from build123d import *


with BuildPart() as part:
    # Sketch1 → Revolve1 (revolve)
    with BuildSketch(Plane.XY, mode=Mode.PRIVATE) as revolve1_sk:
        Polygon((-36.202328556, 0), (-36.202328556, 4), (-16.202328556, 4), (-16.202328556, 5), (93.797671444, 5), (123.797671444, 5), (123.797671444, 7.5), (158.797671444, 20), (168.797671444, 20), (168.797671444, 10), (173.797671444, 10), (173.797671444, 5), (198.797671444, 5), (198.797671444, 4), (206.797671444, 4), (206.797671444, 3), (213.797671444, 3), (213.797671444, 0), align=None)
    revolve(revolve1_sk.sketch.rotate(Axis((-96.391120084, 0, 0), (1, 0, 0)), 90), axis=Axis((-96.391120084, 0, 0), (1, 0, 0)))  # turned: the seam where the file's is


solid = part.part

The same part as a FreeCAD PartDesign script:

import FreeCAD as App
import Part
import Sketcher
Q = App.Units.Quantity

doc = App.newDocument("Part")
body = doc.addObject("PartDesign::Body", "Body")

# Sketch on XY plane
sketch1 = body.newObject("Sketcher::SketchObject", "Sketch")
sketch1.AttachmentSupport = (doc.getObject("XY_Plane"), [""])
sketch1.MapMode = "FlatFace"
sketch1.addGeometry([
    Part.LineSegment(App.Vector(-36.202329, 4, 0), App.Vector(-36.202329, 0, 0)),  # 0
    Part.LineSegment(App.Vector(-36.202329, 0, 0), App.Vector(213.797671, 0, 0)),  # 1
    Part.LineSegment(App.Vector(213.797671, 0, 0), App.Vector(213.797671, 3, 0)),  # 2
    Part.LineSegment(App.Vector(213.797671, 3, 0), App.Vector(206.797671, 3, 0)),  # 3
    Part.LineSegment(App.Vector(206.797671, 3, 0), App.Vector(206.797671, 4, 0)),  # 4
    Part.LineSegment(App.Vector(206.797671, 4, 0), App.Vector(198.797671, 4, 0)),  # 5
    Part.LineSegment(App.Vector(198.797671, 4, 0), App.Vector(198.797671, 5, 0)),  # 6
    Part.LineSegment(App.Vector(198.797671, 5, 0), App.Vector(173.797671, 5, 0)),  # 7
    Part.LineSegment(App.Vector(173.797671, 5, 0), App.Vector(173.797671, 10, 0)),  # 8
    Part.LineSegment(App.Vector(173.797671, 10, 0), App.Vector(168.797671, 10, 0)),  # 9
    Part.LineSegment(App.Vector(168.797671, 10, 0), App.Vector(168.797671, 20, 0)),  # 10
    Part.LineSegment(App.Vector(168.797671, 20, 0), App.Vector(158.797671, 20, 0)),  # 11
    Part.LineSegment(App.Vector(158.797671, 20, 0), App.Vector(123.797671, 7.5, 0)),  # 12
    Part.LineSegment(App.Vector(123.797671, 7.5, 0), App.Vector(123.797671, 5, 0)),  # 13
    Part.LineSegment(App.Vector(123.797671, 5, 0), App.Vector(-16.202329, 5, 0)),  # 14
    Part.LineSegment(App.Vector(-16.202329, 5, 0), App.Vector(-16.202329, 4, 0)),  # 15
    Part.LineSegment(App.Vector(-16.202329, 4, 0), App.Vector(-36.202329, 4, 0)),  # 16
], False)
sketch1.addConstraint([
    Sketcher.Constraint("Coincident", 0, 2, 1, 1),
    Sketcher.Constraint("Coincident", 1, 2, 2, 1),
    Sketcher.Constraint("Coincident", 2, 2, 3, 1),
    Sketcher.Constraint("Coincident", 3, 2, 4, 1),
    Sketcher.Constraint("Coincident", 4, 2, 5, 1),
    Sketcher.Constraint("Coincident", 5, 2, 6, 1),
    Sketcher.Constraint("Coincident", 6, 2, 7, 1),
    Sketcher.Constraint("Coincident", 7, 2, 8, 1),
    Sketcher.Constraint("Coincident", 8, 2, 9, 1),
    Sketcher.Constraint("Coincident", 9, 2, 10, 1),
    Sketcher.Constraint("Coincident", 10, 2, 11, 1),
    Sketcher.Constraint("Coincident", 11, 2, 12, 1),
    Sketcher.Constraint("Coincident", 12, 2, 13, 1),
    Sketcher.Constraint("Coincident", 13, 2, 14, 1),
    Sketcher.Constraint("Coincident", 14, 2, 15, 1),
    Sketcher.Constraint("Coincident", 15, 2, 16, 1),
    Sketcher.Constraint("Coincident", 16, 2, 0, 1),
    Sketcher.Constraint("Vertical", 0),
    Sketcher.Constraint("Horizontal", 1),
    Sketcher.Constraint("Vertical", 2),
    Sketcher.Constraint("Horizontal", 3),
    Sketcher.Constraint("Vertical", 4),
    Sketcher.Constraint("Horizontal", 5),
    Sketcher.Constraint("Vertical", 6),
    Sketcher.Constraint("Horizontal", 7),
    Sketcher.Constraint("Vertical", 8),
    Sketcher.Constraint("Horizontal", 9),
    Sketcher.Constraint("Vertical", 10),
    Sketcher.Constraint("Horizontal", 11),
    Sketcher.Constraint("Vertical", 13),
    Sketcher.Constraint("Horizontal", 14),
    Sketcher.Constraint("Vertical", 15),
    Sketcher.Constraint("Horizontal", 16),
    Sketcher.Constraint("PointOnObject", 0, 2, -1),
    Sketcher.Constraint("Horizontal", 7, 2, 13, 2),
    Sketcher.Constraint("Horizontal", 5, 2, 15, 2),
    Sketcher.Constraint("Equal", 4, 6),
    Sketcher.Constraint("Equal", 9, 8),
    Sketcher.Constraint("Equal", 11, 10),
    Sketcher.Constraint("DistanceX", 1, 1, 1, 2, Q("250 mm")),
    Sketcher.Constraint("DistanceX", 3, 2, 3, 1, Q("7 mm")),
    Sketcher.Constraint("DistanceX", 5, 2, 5, 1, Q("8 mm")),
    Sketcher.Constraint("DistanceX", 7, 2, 7, 1, Q("25 mm")),
    Sketcher.Constraint("DistanceX", 9, 2, 9, 1, Q("5 mm")),
    Sketcher.Constraint("DistanceX", 11, 2, 11, 1, Q("10 mm")),
    Sketcher.Constraint("DistanceX", 14, 2, 14, 1, Q("140 mm")),
    Sketcher.Constraint("DistanceX", 16, 2, 16, 1, Q("20 mm")),
    Sketcher.Constraint("DistanceY", 0, 2, 0, 1, Q("4 mm")),
    Sketcher.Constraint("DistanceY", 2, 1, 2, 2, Q("3 mm")),
    Sketcher.Constraint("DistanceY", 13, 2, 13, 1, Q("2.5 mm")),
    Sketcher.Constraint("DistanceX", 0, 2, -1, 1, Q("36.202329 mm")),
])
revolution = body.newObject("PartDesign::Revolution", "Revolution")
revolution.Profile = sketch1
revolution.ReferenceAxis = (sketch1, ["H_Axis"])
revolution.Angle = 360

doc.recompute()
